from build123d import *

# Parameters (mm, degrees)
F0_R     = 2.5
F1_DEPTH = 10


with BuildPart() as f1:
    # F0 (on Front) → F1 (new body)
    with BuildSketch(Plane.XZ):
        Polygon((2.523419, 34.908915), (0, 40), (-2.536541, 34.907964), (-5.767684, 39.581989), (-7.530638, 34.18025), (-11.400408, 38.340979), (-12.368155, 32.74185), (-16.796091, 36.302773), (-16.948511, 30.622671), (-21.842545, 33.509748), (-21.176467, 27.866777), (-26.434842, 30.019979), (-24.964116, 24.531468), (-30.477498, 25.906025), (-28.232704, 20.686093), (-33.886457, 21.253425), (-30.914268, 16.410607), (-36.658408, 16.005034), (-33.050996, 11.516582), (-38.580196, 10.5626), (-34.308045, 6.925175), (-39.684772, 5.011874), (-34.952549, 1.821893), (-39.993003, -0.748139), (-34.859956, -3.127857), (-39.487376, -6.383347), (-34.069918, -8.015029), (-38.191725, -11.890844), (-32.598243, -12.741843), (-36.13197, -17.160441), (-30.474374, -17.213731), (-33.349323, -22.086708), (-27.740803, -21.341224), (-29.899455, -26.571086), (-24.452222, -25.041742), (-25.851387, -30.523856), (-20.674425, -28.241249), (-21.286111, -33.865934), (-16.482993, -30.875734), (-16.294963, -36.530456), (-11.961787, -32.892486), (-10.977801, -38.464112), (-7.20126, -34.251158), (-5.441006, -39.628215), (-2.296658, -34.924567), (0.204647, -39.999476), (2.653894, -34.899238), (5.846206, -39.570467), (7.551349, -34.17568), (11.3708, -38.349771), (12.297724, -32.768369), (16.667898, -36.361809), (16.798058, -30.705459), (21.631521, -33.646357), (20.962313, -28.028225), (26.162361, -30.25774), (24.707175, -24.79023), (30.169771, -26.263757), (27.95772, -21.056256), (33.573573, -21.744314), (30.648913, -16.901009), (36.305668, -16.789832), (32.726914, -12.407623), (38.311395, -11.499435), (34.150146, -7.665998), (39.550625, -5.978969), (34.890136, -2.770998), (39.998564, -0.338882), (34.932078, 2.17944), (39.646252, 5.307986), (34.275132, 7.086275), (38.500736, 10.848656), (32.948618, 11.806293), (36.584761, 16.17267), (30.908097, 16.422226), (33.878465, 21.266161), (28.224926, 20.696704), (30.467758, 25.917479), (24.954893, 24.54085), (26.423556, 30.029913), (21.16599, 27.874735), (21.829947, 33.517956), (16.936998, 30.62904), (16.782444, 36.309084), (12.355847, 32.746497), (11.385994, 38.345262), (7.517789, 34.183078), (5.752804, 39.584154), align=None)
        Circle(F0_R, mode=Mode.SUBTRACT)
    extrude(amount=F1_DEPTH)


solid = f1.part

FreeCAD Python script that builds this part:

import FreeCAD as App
import Part
import Sketcher
Q = App.Units.Quantity

doc = App.newDocument("Part")
body = doc.addObject("PartDesign::Body", "Body")

# Sketch on XZ plane
sketch1 = doc.addObject("Sketcher::SketchObject", "Sketch")
body.addObject(sketch1)
sketch1.AttachmentSupport = (doc.XZ_Plane, [""])
sketch1.MapMode = "FlatFace"
sketch1.addGeometry(Part.LineSegment(App.Vector(2.523419, 34.908915, 0), App.Vector(0, 40, 0)), False)
sketch1.addGeometry(Part.LineSegment(App.Vector(0, 40, 0), App.Vector(-2.536541, 34.907964, 0)), False)
sketch1.addGeometry(Part.LineSegment(App.Vector(-2.536541, 34.907964, 0), App.Vector(-5.767684, 39.581989, 0)), False)
sketch1.addGeometry(Part.LineSegment(App.Vector(-5.767684, 39.581989, 0), App.Vector(-7.530638, 34.18025, 0)), False)
sketch1.addGeometry(Part.LineSegment(App.Vector(-7.530638, 34.18025, 0), App.Vector(-11.400408, 38.340979, 0)), False)
sketch1.addGeometry(Part.LineSegment(App.Vector(-11.400408, 38.340979, 0), App.Vector(-12.368155, 32.74185, 0)), False)
sketch1.addGeometry(Part.LineSegment(App.Vector(-12.368155, 32.74185, 0), App.Vector(-16.796091, 36.302773, 0)), False)
sketch1.addGeometry(Part.LineSegment(App.Vector(-16.796091, 36.302773, 0), App.Vector(-16.948511, 30.622671, 0)), False)
sketch1.addGeometry(Part.LineSegment(App.Vector(-16.948511, 30.622671, 0), App.Vector(-21.842545, 33.509748, 0)), False)
sketch1.addGeometry(Part.LineSegment(App.Vector(-21.842545, 33.509748, 0), App.Vector(-21.176467, 27.866777, 0)), False)
sketch1.addGeometry(Part.LineSegment(App.Vector(-21.176467, 27.866777, 0), App.Vector(-26.434842, 30.019979, 0)), False)
sketch1.addGeometry(Part.LineSegment(App.Vector(-26.434842, 30.019979, 0), App.Vector(-24.964116, 24.531468, 0)), False)
sketch1.addGeometry(Part.LineSegment(App.Vector(-24.964116, 24.531468, 0), App.Vector(-30.477498, 25.906025, 0)), False)
sketch1.addGeometry(Part.LineSegment(App.Vector(-30.477498, 25.906025, 0), App.Vector(-28.232704, 20.686093, 0)), False)
sketch1.addGeometry(Part.LineSegment(App.Vector(-28.232704, 20.686093, 0), App.Vector(-33.886457, 21.253425, 0)), False)
sketch1.addGeometry(Part.LineSegment(App.Vector(-33.886457, 21.253425, 0), App.Vector(-30.914268, 16.410607, 0)), False)
sketch1.addGeometry(Part.LineSegment(App.Vector(-30.914268, 16.410607, 0), App.Vector(-36.658408, 16.005034, 0)), False)
sketch1.addGeometry(Part.LineSegment(App.Vector(-36.658408, 16.005034, 0), App.Vector(-33.050996, 11.516582, 0)), False)
sketch1.addGeometry(Part.LineSegment(App.Vector(-33.050996, 11.516582, 0), App.Vector(-38.580196, 10.5626, 0)), False)
sketch1.addGeometry(Part.LineSegment(App.Vector(-38.580196, 10.5626, 0), App.Vector(-34.308045, 6.925175, 0)), False)
sketch1.addGeometry(Part.LineSegment(App.Vector(-34.308045, 6.925175, 0), App.Vector(-39.684772, 5.011874, 0)), False)
sketch1.addGeometry(Part.LineSegment(App.Vector(-39.684772, 5.011874, 0), App.Vector(-34.952549, 1.821893, 0)), False)
sketch1.addGeometry(Part.LineSegment(App.Vector(-34.952549, 1.821893, 0), App.Vector(-39.993003, -0.748139, 0)), False)
sketch1.addGeometry(Part.LineSegment(App.Vector(-39.993003, -0.748139, 0), App.Vector(-34.859956, -3.127857, 0)), False)
sketch1.addGeometry(Part.LineSegment(App.Vector(-34.859956, -3.127857, 0), App.Vector(-39.487376, -6.383347, 0)), False)
sketch1.addGeometry(Part.LineSegment(App.Vector(-39.487376, -6.383347, 0), App.Vector(-34.069918, -8.015029, 0)), False)
sketch1.addGeometry(Part.LineSegment(App.Vector(-34.069918, -8.015029, 0), App.Vector(-38.191725, -11.890844, 0)), False)
sketch1.addGeometry(Part.LineSegment(App.Vector(-38.191725, -11.890844, 0), App.Vector(-32.598243, -12.741843, 0)), False)
sketch1.addGeometry(Part.LineSegment(App.Vector(-32.598243, -12.741843, 0), App.Vector(-36.13197, -17.160441, 0)), False)
sketch1.addGeometry(Part.LineSegment(App.Vector(-36.13197, -17.160441, 0), App.Vector(-30.474374, -17.213731, 0)), False)
sketch1.addGeometry(Part.LineSegment(App.Vector(-30.474374, -17.213731, 0), App.Vector(-33.349323, -22.086708, 0)), False)
sketch1.addGeometry(Part.LineSegment(App.Vector(-33.349323, -22.086708, 0), App.Vector(-27.740803, -21.341224, 0)), False)
sketch1.addGeometry(Part.LineSegment(App.Vector(-27.740803, -21.341224, 0), App.Vector(-29.899455, -26.571086, 0)), False)
sketch1.addGeometry(Part.LineSegment(App.Vector(-29.899455, -26.571086, 0), App.Vector(-24.452222, -25.041742, 0)), False)
sketch1.addGeometry(Part.LineSegment(App.Vector(-24.452222, -25.041742, 0), App.Vector(-25.851387, -30.523856, 0)), False)
sketch1.addGeometry(Part.LineSegment(App.Vector(-25.851387, -30.523856, 0), App.Vector(-20.674425, -28.241249, 0)), False)
sketch1.addGeometry(Part.LineSegment(App.Vector(-20.674425, -28.241249, 0), App.Vector(-21.286111, -33.865934, 0)), False)
sketch1.addGeometry(Part.LineSegment(App.Vector(-21.286111, -33.865934, 0), App.Vector(-16.482993, -30.875734, 0)), False)
sketch1.addGeometry(Part.LineSegment(App.Vector(-16.482993, -30.875734, 0), App.Vector(-16.294963, -36.530456, 0)), False)
sketch1.addGeometry(Part.LineSegment(App.Vector(-16.294963, -36.530456, 0), App.Vector(-11.961787, -32.892486, 0)), False)
sketch1.addGeometry(Part.LineSegment(App.Vector(-11.961787, -32.892486, 0), App.Vector(-10.977801, -38.464112, 0)), False)
sketch1.addGeometry(Part.LineSegment(App.Vector(-10.977801, -38.464112, 0), App.Vector(-7.20126, -34.251158, 0)), False)
sketch1.addGeometry(Part.LineSegment(App.Vector(-7.20126, -34.251158, 0), App.Vector(-5.441006, -39.628215, 0)), False)
sketch1.addGeometry(Part.LineSegment(App.Vector(-5.441006, -39.628215, 0), App.Vector(-2.296658, -34.924567, 0)), False)
sketch1.addGeometry(Part.LineSegment(App.Vector(-2.296658, -34.924567, 0), App.Vector(0.204647, -39.999476, 0)), False)
sketch1.addGeometry(Part.LineSegment(App.Vector(0.204647, -39.999476, 0), App.Vector(2.653894, -34.899238, 0)), False)
sketch1.addGeometry(Part.LineSegment(App.Vector(2.653894, -34.899238, 0), App.Vector(5.846206, -39.570467, 0)), False)
sketch1.addGeometry(Part.LineSegment(App.Vector(5.846206, -39.570467, 0), App.Vector(7.551349, -34.17568, 0)), False)
sketch1.addGeometry(Part.LineSegment(App.Vector(7.551349, -34.17568, 0), App.Vector(11.3708, -38.349771, 0)), False)
sketch1.addGeometry(Part.LineSegment(App.Vector(11.3708, -38.349771, 0), App.Vector(12.297724, -32.768369, 0)), False)
sketch1.addGeometry(Part.LineSegment(App.Vector(12.297724, -32.768369, 0), App.Vector(16.667898, -36.361809, 0)), False)
sketch1.addGeometry(Part.LineSegment(App.Vector(16.667898, -36.361809, 0), App.Vector(16.798058, -30.705459, 0)), False)
sketch1.addGeometry(Part.LineSegment(App.Vector(16.798058, -30.705459, 0), App.Vector(21.631521, -33.646357, 0)), False)
sketch1.addGeometry(Part.LineSegment(App.Vector(21.631521, -33.646357, 0), App.Vector(20.962313, -28.028225, 0)), False)
sketch1.addGeometry(Part.LineSegment(App.Vector(20.962313, -28.028225, 0), App.Vector(26.162361, -30.25774, 0)), False)
sketch1.addGeometry(Part.LineSegment(App.Vector(26.162361, -30.25774, 0), App.Vector(24.707175, -24.79023, 0)), False)
sketch1.addGeometry(Part.LineSegment(App.Vector(24.707175, -24.79023, 0), App.Vector(30.169771, -26.263757, 0)), False)
sketch1.addGeometry(Part.LineSegment(App.Vector(30.169771, -26.263757, 0), App.Vector(27.95772, -21.056256, 0)), False)
sketch1.addGeometry(Part.LineSegment(App.Vector(27.95772, -21.056256, 0), App.Vector(33.573573, -21.744314, 0)), False)
sketch1.addGeometry(Part.LineSegment(App.Vector(33.573573, -21.744314, 0), App.Vector(30.648913, -16.901009, 0)), False)
sketch1.addGeometry(Part.LineSegment(App.Vector(30.648913, -16.901009, 0), App.Vector(36.305668, -16.789832, 0)), False)
sketch1.addGeometry(Part.LineSegment(App.Vector(36.305668, -16.789832, 0), App.Vector(32.726914, -12.407623, 0)), False)
sketch1.addGeometry(Part.LineSegment(App.Vector(32.726914, -12.407623, 0), App.Vector(38.311395, -11.499435, 0)), False)
sketch1.addGeometry(Part.LineSegment(App.Vector(38.311395, -11.499435, 0), App.Vector(34.150146, -7.665998, 0)), False)
sketch1.addGeometry(Part.LineSegment(App.Vector(34.150146, -7.665998, 0), App.Vector(39.550625, -5.978969, 0)), False)
sketch1.addGeometry(Part.LineSegment(App.Vector(39.550625, -5.978969, 0), App.Vector(34.890136, -2.770998, 0)), False)
sketch1.addGeometry(Part.LineSegment(App.Vector(34.890136, -2.770998, 0), App.Vector(39.998564, -0.338882, 0)), False)
sketch1.addGeometry(Part.LineSegment(App.Vector(39.998564, -0.338882, 0), App.Vector(34.932078, 2.17944, 0)), False)
sketch1.addGeometry(Part.LineSegment(App.Vector(34.932078, 2.17944, 0), App.Vector(39.646252, 5.307986, 0)), False)
sketch1.addGeometry(Part.LineSegment(App.Vector(39.646252, 5.307986, 0), App.Vector(34.275132, 7.086275, 0)), False)
sketch1.addGeometry(Part.LineSegment(App.Vector(34.275132, 7.086275, 0), App.Vector(38.500736, 10.848656, 0)), False)
sketch1.addGeometry(Part.LineSegment(App.Vector(38.500736, 10.848656, 0), App.Vector(32.948618, 11.806293, 0)), False)
sketch1.addGeometry(Part.LineSegment(App.Vector(32.948618, 11.806293, 0), App.Vector(36.584761, 16.17267, 0)), False)
sketch1.addGeometry(Part.LineSegment(App.Vector(36.584761, 16.17267, 0), App.Vector(30.908097, 16.422226, 0)), False)
sketch1.addGeometry(Part.LineSegment(App.Vector(30.908097, 16.422226, 0), App.Vector(33.878465, 21.266161, 0)), False)
sketch1.addGeometry(Part.LineSegment(App.Vector(33.878465, 21.266161, 0), App.Vector(28.224926, 20.696704, 0)), False)
sketch1.addGeometry(Part.LineSegment(App.Vector(28.224926, 20.696704, 0), App.Vector(30.467758, 25.917479, 0)), False)
sketch1.addGeometry(Part.LineSegment(App.Vector(30.467758, 25.917479, 0), App.Vector(24.954893, 24.54085, 0)), False)
sketch1.addGeometry(Part.LineSegment(App.Vector(24.954893, 24.54085, 0), App.Vector(26.423556, 30.029913, 0)), False)
sketch1.addGeometry(Part.LineSegment(App.Vector(26.423556, 30.029913, 0), App.Vector(21.16599, 27.874735, 0)), False)
sketch1.addGeometry(Part.LineSegment(App.Vector(21.16599, 27.874735, 0), App.Vector(21.829947, 33.517956, 0)), False)
sketch1.addGeometry(Part.LineSegment(App.Vector(21.829947, 33.517956, 0), App.Vector(16.936998, 30.62904, 0)), False)
sketch1.addGeometry(Part.LineSegment(App.Vector(16.936998, 30.62904, 0), App.Vector(16.782444, 36.309084, 0)), False)
sketch1.addGeometry(Part.LineSegment(App.Vector(16.782444, 36.309084, 0), App.Vector(12.355847, 32.746497, 0)), False)
sketch1.addGeometry(Part.LineSegment(App.Vector(12.355847, 32.746497, 0), App.Vector(11.385994, 38.345262, 0)), False)
sketch1.addGeometry(Part.LineSegment(App.Vector(11.385994, 38.345262, 0), App.Vector(7.517789, 34.183078, 0)), False)
sketch1.addGeometry(Part.LineSegment(App.Vector(7.517789, 34.183078, 0), App.Vector(5.752804, 39.584154, 0)), False)
sketch1.addGeometry(Part.LineSegment(App.Vector(5.752804, 39.584154, 0), App.Vector(2.523419, 34.908915, 0)), False)
sketch1.addGeometry(Part.Circle(App.Vector(0, 0, 0), App.Vector(0, 0, 1), 2.5), False)
sketch1.addConstraint(Sketcher.Constraint("Coincident", 0, 2, 1, 1))
sketch1.addConstraint(Sketcher.Constraint("Coincident", 1, 2, 2, 1))
sketch1.addConstraint(Sketcher.Constraint("Coincident", 2, 2, 3, 1))
sketch1.addConstraint(Sketcher.Constraint("Coincident", 3, 2, 4, 1))
sketch1.addConstraint(Sketcher.Constraint("Coincident", 4, 2, 5, 1))
sketch1.addConstraint(Sketcher.Constraint("Coincident", 5, 2, 6, 1))
sketch1.addConstraint(Sketcher.Constraint("Coincident", 6, 2, 7, 1))
sketch1.addConstraint(Sketcher.Constraint("Coincident", 7, 2, 8, 1))
sketch1.addConstraint(Sketcher.Constraint("Coincident", 8, 2, 9, 1))
sketch1.addConstraint(Sketcher.Constraint("Coincident", 9, 2, 10, 1))
sketch1.addConstraint(Sketcher.Constraint("Coincident", 10, 2, 11, 1))
sketch1.addConstraint(Sketcher.Constraint("Coincident", 11, 2, 12, 1))
sketch1.addConstraint(Sketcher.Constraint("Coincident", 12, 2, 13, 1))
sketch1.addConstraint(Sketcher.Constraint("Coincident", 13, 2, 14, 1))
sketch1.addConstraint(Sketcher.Constraint("Coincident", 14, 2, 15, 1))
sketch1.addConstraint(Sketcher.Constraint("Coincident", 15, 2, 16, 1))
sketch1.addConstraint(Sketcher.Constraint("Coincident", 16, 2, 17, 1))
sketch1.addConstraint(Sketcher.Constraint("Coincident", 17, 2, 18, 1))
sketch1.addConstraint(Sketcher.Constraint("Coincident", 18, 2, 19, 1))
sketch1.addConstraint(Sketcher.Constraint("Coincident", 19, 2, 20, 1))
sketch1.addConstraint(Sketcher.Constraint("Coincident", 20, 2, 21, 1))
sketch1.addConstraint(Sketcher.Constraint("Coincident", 21, 2, 22, 1))
sketch1.addConstraint(Sketcher.Constraint("Coincident", 22, 2, 23, 1))
sketch1.addConstraint(Sketcher.Constraint("Coincident", 23, 2, 24, 1))
sketch1.addConstraint(Sketcher.Constraint("Coincident", 24, 2, 25, 1))
sketch1.addConstraint(Sketcher.Constraint("Coincident", 25, 2, 26, 1))
sketch1.addConstraint(Sketcher.Constraint("Coincident", 26, 2, 27, 1))
sketch1.addConstraint(Sketcher.Constraint("Coincident", 27, 2, 28, 1))
sketch1.addConstraint(Sketcher.Constraint("Coincident", 28, 2, 29, 1))
sketch1.addConstraint(Sketcher.Constraint("Coincident", 29, 2, 30, 1))
sketch1.addConstraint(Sketcher.Constraint("Coincident", 30, 2, 31, 1))
sketch1.addConstraint(Sketcher.Constraint("Coincident", 31, 2, 32, 1))
sketch1.addConstraint(Sketcher.Constraint("Coincident", 32, 2, 33, 1))
sketch1.addConstraint(Sketcher.Constraint("Coincident", 33, 2, 34, 1))
sketch1.addConstraint(Sketcher.Constraint("Coincident", 34, 2, 35, 1))
sketch1.addConstraint(Sketcher.Constraint("Coincident", 35, 2, 36, 1))
sketch1.addConstraint(Sketcher.Constraint("Coincident", 36, 2, 37, 1))
sketch1.addConstraint(Sketcher.Constraint("Coincident", 37, 2, 38, 1))
sketch1.addConstraint(Sketcher.Constraint("Coincident", 38, 2, 39, 1))
sketch1.addConstraint(Sketcher.Constraint("Coincident", 39, 2, 40, 1))
sketch1.addConstraint(Sketcher.Constraint("Coincident", 40, 2, 41, 1))
sketch1.addConstraint(Sketcher.Constraint("Coincident", 41, 2, 42, 1))
sketch1.addConstraint(Sketcher.Constraint("Coincident", 42, 2, 43, 1))
sketch1.addConstraint(Sketcher.Constraint("Coincident", 43, 2, 44, 1))
sketch1.addConstraint(Sketcher.Constraint("Coincident", 44, 2, 45, 1))
sketch1.addConstraint(Sketcher.Constraint("Coincident", 45, 2, 46, 1))
sketch1.addConstraint(Sketcher.Constraint("Coincident", 46, 2, 47, 1))
sketch1.addConstraint(Sketcher.Constraint("Coincident", 47, 2, 48, 1))
sketch1.addConstraint(Sketcher.Constraint("Coincident", 48, 2, 49, 1))
sketch1.addConstraint(Sketcher.Constraint("Coincident", 49, 2, 50, 1))
sketch1.addConstraint(Sketcher.Constraint("Coincident", 50, 2, 51, 1))
sketch1.addConstraint(Sketcher.Constraint("Coincident", 51, 2, 52, 1))
sketch1.addConstraint(Sketcher.Constraint("Coincident", 52, 2, 53, 1))
sketch1.addConstraint(Sketcher.Constraint("Coincident", 53, 2, 54, 1))
sketch1.addConstraint(Sketcher.Constraint("Coincident", 54, 2, 55, 1))
sketch1.addConstraint(Sketcher.Constraint("Coincident", 55, 2, 56, 1))
sketch1.addConstraint(Sketcher.Constraint("Coincident", 56, 2, 57, 1))
sketch1.addConstraint(Sketcher.Constraint("Coincident", 57, 2, 58, 1))
sketch1.addConstraint(Sketcher.Constraint("Coincident", 58, 2, 59, 1))
sketch1.addConstraint(Sketcher.Constraint("Coincident", 59, 2, 60, 1))
sketch1.addConstraint(Sketcher.Constraint("Coincident", 60, 2, 61, 1))
sketch1.addConstraint(Sketcher.Constraint("Coincident", 61, 2, 62, 1))
sketch1.addConstraint(Sketcher.Constraint("Coincident", 62, 2, 63, 1))
sketch1.addConstraint(Sketcher.Constraint("Coincident", 63, 2, 64, 1))
sketch1.addConstraint(Sketcher.Constraint("Coincident", 64, 2, 65, 1))
sketch1.addConstraint(Sketcher.Constraint("Coincident", 65, 2, 66, 1))
sketch1.addConstraint(Sketcher.Constraint("Coincident", 66, 2, 67, 1))
sketch1.addConstraint(Sketcher.Constraint("Coincident", 67, 2, 68, 1))
sketch1.addConstraint(Sketcher.Constraint("Coincident", 68, 2, 69, 1))
sketch1.addConstraint(Sketcher.Constraint("Coincident", 69, 2, 70, 1))
sketch1.addConstraint(Sketcher.Constraint("Coincident", 70, 2, 71, 1))
sketch1.addConstraint(Sketcher.Constraint("Coincident", 71, 2, 72, 1))
sketch1.addConstraint(Sketcher.Constraint("Coincident", 72, 2, 73, 1))
sketch1.addConstraint(Sketcher.Constraint("Coincident", 73, 2, 74, 1))
sketch1.addConstraint(Sketcher.Constraint("Coincident", 74, 2, 75, 1))
sketch1.addConstraint(Sketcher.Constraint("Coincident", 75, 2, 76, 1))
sketch1.addConstraint(Sketcher.Constraint("Coincident", 76, 2, 77, 1))
sketch1.addConstraint(Sketcher.Constraint("Coincident", 77, 2, 78, 1))
sketch1.addConstraint(Sketcher.Constraint("Coincident", 78, 2, 79, 1))
sketch1.addConstraint(Sketcher.Constraint("Coincident", 79, 2, 80, 1))
sketch1.addConstraint(Sketcher.Constraint("Coincident", 80, 2, 81, 1))
sketch1.addConstraint(Sketcher.Constraint("Coincident", 81, 2, 82, 1))
sketch1.addConstraint(Sketcher.Constraint("Coincident", 82, 2, 83, 1))
sketch1.addConstraint(Sketcher.Constraint("Coincident", 83, 2, 84, 1))
sketch1.addConstraint(Sketcher.Constraint("Coincident", 84, 2, 85, 1))
sketch1.addConstraint(Sketcher.Constraint("Coincident", 85, 2, 86, 1))
sketch1.addConstraint(Sketcher.Constraint("Coincident", 86, 2, 87, 1))
sketch1.addConstraint(Sketcher.Constraint("Coincident", 87, 2, 0, 1))
sketch1.addConstraint(Sketcher.Constraint("Coincident", 88, 3, -1, 1))
sketch1.addConstraint(Sketcher.Constraint("PointOnObject", 0, 2, -2))
sketch1.addConstraint(Sketcher.Constraint("Diameter", 88, Q("5 mm")))
sketch1.addConstraint(Sketcher.Constraint("DistanceY", -1, 1, 0, 2, Q("40 mm")))
sketch1.addConstraint(Sketcher.Constraint("DistanceY", 65, 2, -1, 1, Q("2.770998 mm")))
sketch1.addConstraint(Sketcher.Constraint("Distance", 71, Q("5.6341 mm")))
sketch1.addConstraint(Sketcher.Constraint("DistanceX", 12, 2, -1, 1, Q("30.477498 mm")))
sketch1.addConstraint(Sketcher.Constraint("DistanceY", -1, 1, 18, 2, Q("10.5626 mm")))
sketch1.addConstraint(Sketcher.Constraint("DistanceX", 40, 2, -1, 1, Q("10.977801 mm")))
sketch1.addConstraint(Sketcher.Constraint("DistanceX", -1, 1, 48, 2, Q("11.3708 mm")))
sketch1.addConstraint(Sketcher.Constraint("DistanceX", -1, 1, 50, 2, Q("16.667898 mm")))
sketch1.addConstraint(Sketcher.Constraint("Distance", 16, Q("5.75844 mm")))
sketch1.addConstraint(Sketcher.Constraint("Distance", 17, Q("5.758439 mm")))
sketch1.addConstraint(Sketcher.Constraint("Distance", 40, Q("5.657848 mm")))
sketch1.addConstraint(Sketcher.Constraint("Distance", 52, Q("5.657848 mm")))
sketch1.addConstraint(Sketcher.Constraint("Distance", 53, Q("5.657848 mm")))
sketch1.addConstraint(Sketcher.Constraint("DistanceX", 1, 2, -1, 1, Q("2.536541 mm")))
sketch1.addConstraint(Sketcher.Constraint("DistanceY", -1, 1, 2, 2, Q("39.581989 mm")))
sketch1.addConstraint(Sketcher.Constraint("DistanceY", -1, 1, 3, 2, Q("34.18025 mm")))
sketch1.addConstraint(Sketcher.Constraint("DistanceY", -1, 1, 4, 2, Q("38.340979 mm")))
sketch1.addConstraint(Sketcher.Constraint("DistanceY", -1, 1, 5, 2, Q("32.74185 mm")))
sketch1.addConstraint(Sketcher.Constraint("DistanceX", 6, 2, -1, 1, Q("16.796091 mm")))
sketch1.addConstraint(Sketcher.Constraint("DistanceX", 7, 2, -1, 1, Q("16.948511 mm")))
sketch1.addConstraint(Sketcher.Constraint("DistanceY", -1, 1, 7, 2, Q("30.622671 mm")))
sketch1.addConstraint(Sketcher.Constraint("DistanceY", -1, 1, 8, 2, Q("33.509748 mm")))
sketch1.addConstraint(Sketcher.Constraint("DistanceX", 10, 2, -1, 1, Q("26.434842 mm")))
sketch1.addConstraint(Sketcher.Constraint("DistanceY", -1, 1, 10, 2, Q("30.019979 mm")))
sketch1.addConstraint(Sketcher.Constraint("DistanceY", -1, 1, 11, 2, Q("24.531468 mm")))
sketch1.addConstraint(Sketcher.Constraint("DistanceX", 15, 2, -1, 1, Q("30.914268 mm")))
sketch1.addConstraint(Sketcher.Constraint("DistanceX", 21, 2, -1, 1, Q("34.952549 mm")))
sketch1.addConstraint(Sketcher.Constraint("DistanceY", 22, 2, -1, 1, Q("0.748139 mm")))
sketch1.addConstraint(Sketcher.Constraint("DistanceY", 25, 2, -1, 1, Q("8.015029 mm")))
sketch1.addConstraint(Sketcher.Constraint("DistanceX", 28, 2, -1, 1, Q("36.13197 mm")))
sketch1.addConstraint(Sketcher.Constraint("DistanceY", 28, 2, -1, 1, Q("17.160441 mm")))
sketch1.addConstraint(Sketcher.Constraint("DistanceY", 29, 2, -1, 1, Q("17.213731 mm")))
sketch1.addConstraint(Sketcher.Constraint("DistanceY", 30, 2, -1, 1, Q("22.086708 mm")))
sketch1.addConstraint(Sketcher.Constraint("DistanceX", 33, 2, -1, 1, Q("24.452222 mm")))
sketch1.addConstraint(Sketcher.Constraint("DistanceY", 33, 2, -1, 1, Q("25.041742 mm")))
sketch1.addConstraint(Sketcher.Constraint("DistanceY", 35, 2, -1, 1, Q("28.241249 mm")))
sketch1.addConstraint(Sketcher.Constraint("DistanceX", 36, 2, -1, 1, Q("21.286111 mm")))
sketch1.addConstraint(Sketcher.Constraint("DistanceX", 41, 2, -1, 1, Q("7.20126 mm")))
sketch1.addConstraint(Sketcher.Constraint("DistanceX", -1, 1, 47, 2, Q("7.551349 mm")))
sketch1.addConstraint(Sketcher.Constraint("DistanceY", 47, 2, -1, 1, Q("34.17568 mm")))
sketch1.addConstraint(Sketcher.Constraint("DistanceY", 48, 2, -1, 1, Q("38.349771 mm")))
sketch1.addConstraint(Sketcher.Constraint("DistanceY", 49, 2, -1, 1, Q("32.768369 mm")))
sketch1.addConstraint(Sketcher.Constraint("DistanceY", 50, 2, -1, 1, Q("36.361809 mm")))
sketch1.addConstraint(Sketcher.Constraint("DistanceX", -1, 1, 51, 2, Q("16.798058 mm")))
sketch1.addConstraint(Sketcher.Constraint("DistanceY", 51, 2, -1, 1, Q("30.705459 mm")))
sketch1.addConstraint(Sketcher.Constraint("DistanceX", -1, 1, 52, 2, Q("21.631521 mm")))
sketch1.addConstraint(Sketcher.Constraint("DistanceX", -1, 1, 54, 2, Q("26.162361 mm")))
sketch1.addConstraint(Sketcher.Constraint("DistanceY", 54, 2, -1, 1, Q("30.25774 mm")))
sketch1.addConstraint(Sketcher.Constraint("DistanceY", 55, 2, -1, 1, Q("24.79023 mm")))
sketch1.addConstraint(Sketcher.Constraint("DistanceX", -1, 1, 56, 2, Q("30.169771 mm")))
sketch1.addConstraint(Sketcher.Constraint("DistanceX", -1, 1, 57, 2, Q("27.95772 mm")))
sketch1.addConstraint(Sketcher.Constraint("DistanceY", 59, 2, -1, 1, Q("16.901009 mm")))
sketch1.addConstraint(Sketcher.Constraint("DistanceY", 64, 2, -1, 1, Q("5.978969 mm")))
sketch1.addConstraint(Sketcher.Constraint("DistanceY", -1, 1, 67, 2, Q("2.17944 mm")))
sketch1.addConstraint(Sketcher.Constraint("DistanceX", -1, 1, 68, 2, Q("39.646252 mm")))
sketch1.addConstraint(Sketcher.Constraint("DistanceX", -1, 1, 71, 2, Q("32.948618 mm")))
sketch1.addConstraint(Sketcher.Constraint("DistanceX", -1, 1, 72, 2, Q("36.584761 mm")))
sketch1.addConstraint(Sketcher.Constraint("DistanceY", -1, 1, 72, 2, Q("16.17267 mm")))
sketch1.addConstraint(Sketcher.Constraint("DistanceY", -1, 1, 74, 2, Q("21.266161 mm")))
sketch1.addConstraint(Sketcher.Constraint("DistanceX", -1, 1, 76, 2, Q("30.467758 mm")))
sketch1.addConstraint(Sketcher.Constraint("DistanceY", -1, 1, 76, 2, Q("25.917479 mm")))
sketch1.addConstraint(Sketcher.Constraint("DistanceY", -1, 1, 77, 2, Q("24.54085 mm")))
sketch1.addConstraint(Sketcher.Constraint("DistanceX", -1, 1, 79, 2, Q("21.16599 mm")))
sketch1.addConstraint(Sketcher.Constraint("DistanceY", -1, 1, 81, 2, Q("30.62904 mm")))
sketch1.addConstraint(Sketcher.Constraint("DistanceY", -1, 1, 84, 2, Q("38.345262 mm")))
sketch1.addConstraint(Sketcher.Constraint("DistanceX", -1, 1, 85, 2, Q("7.517789 mm")))
sketch1.addConstraint(Sketcher.Constraint("DistanceY", -1, 1, 85, 2, Q("34.183078 mm")))
sketch1.addConstraint(Sketcher.Constraint("DistanceX", -1, 1, 87, 2, Q("2.523419 mm")))
sketch1.addConstraint(Sketcher.Constraint("Distance", 0, Q("5.682147 mm")))
sketch1.addConstraint(Sketcher.Constraint("Distance", 1, Q("5.688837 mm")))
sketch1.addConstraint(Sketcher.Constraint("Distance", 2, Q("5.682147 mm")))
sketch1.addConstraint(Sketcher.Constraint("Distance", 3, Q("5.682147 mm")))
sketch1.addConstraint(Sketcher.Constraint("Distance", 4, Q("5.682146 mm")))
sketch1.addConstraint(Sketcher.Constraint("Distance", 5, Q("5.682146 mm")))
sketch1.addConstraint(Sketcher.Constraint("Distance", 6, Q("5.682147 mm")))
sketch1.addConstraint(Sketcher.Constraint("Distance", 8, Q("5.682146 mm")))
sketch1.addConstraint(Sketcher.Constraint("Distance", 9, Q("5.682146 mm")))
sketch1.addConstraint(Sketcher.Constraint("Distance", 10, Q("5.682146 mm")))
sketch1.addConstraint(Sketcher.Constraint("Distance", 11, Q("5.682146 mm")))
sketch1.addConstraint(Sketcher.Constraint("Distance", 12, Q("5.682146 mm")))
sketch1.addConstraint(Sketcher.Constraint("Distance", 13, Q("5.682147 mm")))
sketch1.addConstraint(Sketcher.Constraint("Distance", 14, Q("5.682146 mm")))
sketch1.addConstraint(Sketcher.Constraint("Distance", 15, Q("5.682147 mm")))
sketch1.addConstraint(Sketcher.Constraint("Distance", 18, Q("5.610894 mm")))
sketch1.addConstraint(Sketcher.Constraint("Distance", 19, Q("5.610894 mm")))
sketch1.addConstraint(Sketcher.Constraint("Distance", 20, Q("5.707006 mm")))
sketch1.addConstraint(Sketcher.Constraint("Distance", 21, Q("5.707006 mm")))
sketch1.addConstraint(Sketcher.Constraint("Distance", 22, Q("5.657848 mm")))
sketch1.addConstraint(Sketcher.Constraint("Distance", 23, Q("5.657847 mm")))
sketch1.addConstraint(Sketcher.Constraint("Distance", 24, Q("5.657847 mm")))
sketch1.addConstraint(Sketcher.Constraint("Distance", 25, Q("5.657847 mm")))
sketch1.addConstraint(Sketcher.Constraint("Distance", 26, Q("5.657847 mm")))
sketch1.addConstraint(Sketcher.Constraint("Distance", 27, Q("5.657848 mm")))
sketch1.addConstraint(Sketcher.Constraint("Distance", 28, Q("5.657847 mm")))
sketch1.addConstraint(Sketcher.Constraint("Distance", 29, Q("5.657847 mm")))
sketch1.addConstraint(Sketcher.Constraint("Distance", 30, Q("5.657847 mm")))
sketch1.addConstraint(Sketcher.Constraint("Distance", 31, Q("5.657848 mm")))
sketch1.addConstraint(Sketcher.Constraint("Distance", 32, Q("5.657847 mm")))
sketch1.addConstraint(Sketcher.Constraint("Distance", 33, Q("5.657848 mm")))
sketch1.addConstraint(Sketcher.Constraint("Distance", 34, Q("5.657847 mm")))
sketch1.addConstraint(Sketcher.Constraint("Distance", 35, Q("5.657847 mm")))
sketch1.addConstraint(Sketcher.Constraint("Distance", 36, Q("5.657848 mm")))
sketch1.addConstraint(Sketcher.Constraint("Distance", 37, Q("5.657848 mm")))
sketch1.addConstraint(Sketcher.Constraint("Distance", 38, Q("5.657847 mm")))
sketch1.addConstraint(Sketcher.Constraint("Distance", 39, Q("5.657848 mm")))
sketch1.addConstraint(Sketcher.Constraint("Distance", 41, Q("5.657848 mm")))
sketch1.addConstraint(Sketcher.Constraint("Distance", 42, Q("5.657847 mm")))
sketch1.addConstraint(Sketcher.Constraint("Distance", 43, Q("5.657847 mm")))
sketch1.addConstraint(Sketcher.Constraint("Distance", 44, Q("5.657847 mm")))
sketch1.addConstraint(Sketcher.Constraint("Distance", 45, Q("5.657848 mm")))
sketch1.addConstraint(Sketcher.Constraint("Distance", 46, Q("5.657847 mm")))
sketch1.addConstraint(Sketcher.Constraint("Distance", 47, Q("5.657848 mm")))
sketch1.addConstraint(Sketcher.Constraint("Distance", 49, Q("5.657847 mm")))
sketch1.addConstraint(Sketcher.Constraint("Distance", 54, Q("5.657847 mm")))
sketch1.addConstraint(Sketcher.Constraint("Distance", 55, Q("5.657847 mm")))
sketch1.addConstraint(Sketcher.Constraint("Distance", 56, Q("5.657847 mm")))
sketch1.addConstraint(Sketcher.Constraint("Distance", 57, Q("5.657847 mm")))
sketch1.addConstraint(Sketcher.Constraint("Distance", 58, Q("5.657847 mm")))
sketch1.addConstraint(Sketcher.Constraint("Distance", 59, Q("5.657848 mm")))
sketch1.addConstraint(Sketcher.Constraint("Distance", 60, Q("5.657847 mm")))
sketch1.addConstraint(Sketcher.Constraint("Distance", 61, Q("5.657847 mm")))
sketch1.addConstraint(Sketcher.Constraint("Distance", 62, Q("5.657847 mm")))
sketch1.addConstraint(Sketcher.Constraint("Distance", 63, Q("5.657847 mm")))
sketch1.addConstraint(Sketcher.Constraint("Distance", 64, Q("5.657848 mm")))
sketch1.addConstraint(Sketcher.Constraint("Distance", 65, Q("5.657847 mm")))
sketch1.addConstraint(Sketcher.Constraint("Distance", 66, Q("5.657846 mm")))
sketch1.addConstraint(Sketcher.Constraint("Distance", 67, Q("5.657846 mm")))
sketch1.addConstraint(Sketcher.Constraint("Distance", 68, Q("5.657847 mm")))
sketch1.addConstraint(Sketcher.Constraint("Distance", 69, Q("5.657848 mm")))
sketch1.addConstraint(Sketcher.Constraint("Distance", 70, Q("5.657848 mm")))
sketch1.addConstraint(Sketcher.Constraint("Distance", 72, Q("5.682146 mm")))
sketch1.addConstraint(Sketcher.Constraint("Distance", 73, Q("5.682147 mm")))
sketch1.addConstraint(Sketcher.Constraint("Distance", 74, Q("5.682147 mm")))
sketch1.addConstraint(Sketcher.Constraint("Distance", 75, Q("5.682146 mm")))
sketch1.addConstraint(Sketcher.Constraint("Distance", 76, Q("5.682146 mm")))
sketch1.addConstraint(Sketcher.Constraint("Distance", 77, Q("5.682146 mm")))
sketch1.addConstraint(Sketcher.Constraint("Distance", 78, Q("5.682146 mm")))
sketch1.addConstraint(Sketcher.Constraint("Distance", 79, Q("5.682147 mm")))
sketch1.addConstraint(Sketcher.Constraint("Distance", 80, Q("5.682146 mm")))
sketch1.addConstraint(Sketcher.Constraint("Distance", 81, Q("5.682146 mm")))
sketch1.addConstraint(Sketcher.Constraint("Distance", 82, Q("5.682146 mm")))
sketch1.addConstraint(Sketcher.Constraint("Distance", 83, Q("5.682146 mm")))
sketch1.addConstraint(Sketcher.Constraint("Distance", 84, Q("5.682146 mm")))
sketch1.addConstraint(Sketcher.Constraint("Distance", 85, Q("5.682146 mm")))
sketch1.addConstraint(Sketcher.Constraint("Distance", 86, Q("5.682147 mm")))
sketch1.addConstraint(Sketcher.Constraint("Distance", 87, Q("5.682146 mm")))
sketch1.addConstraint(Sketcher.Constraint("DistanceX", 13, 2, -1, 1, Q("28.232704 mm")))
sketch1.addConstraint(Sketcher.Constraint("DistanceX", 14, 2, -1, 1, Q("33.886457 mm")))
sketch1.addConstraint(Sketcher.Constraint("DistanceX", 16, 2, -1, 1, Q("36.658408 mm")))
sketch1.addConstraint(Sketcher.Constraint("DistanceX", 17, 2, -1, 1, Q("33.050996 mm")))
sketch1.addConstraint(Sketcher.Constraint("DistanceX", 19, 2, -1, 1, Q("34.308045 mm")))
sketch1.addConstraint(Sketcher.Constraint("DistanceX", 20, 2, -1, 1, Q("39.684772 mm")))
sketch1.addConstraint(Sketcher.Constraint("DistanceX", 23, 2, -1, 1, Q("34.859956 mm")))
sketch1.addConstraint(Sketcher.Constraint("DistanceX", 24, 2, -1, 1, Q("39.487376 mm")))
sketch1.addConstraint(Sketcher.Constraint("DistanceX", 26, 2, -1, 1, Q("38.191725 mm")))
sketch1.addConstraint(Sketcher.Constraint("DistanceX", 31, 2, -1, 1, Q("27.740803 mm")))
sketch1.addConstraint(Sketcher.Constraint("DistanceX", 34, 2, -1, 1, Q("25.851387 mm")))
sketch1.addConstraint(Sketcher.Constraint("DistanceX", 37, 2, -1, 1, Q("16.482993 mm")))
sketch1.addConstraint(Sketcher.Constraint("DistanceX", 38, 2, -1, 1, Q("16.294963 mm")))
sketch1.addConstraint(Sketcher.Constraint("DistanceX", 39, 2, -1, 1, Q("11.961787 mm")))
sketch1.addConstraint(Sketcher.Constraint("DistanceX", 42, 2, -1, 1, Q("5.441006 mm")))
sketch1.addConstraint(Sketcher.Constraint("DistanceX", 43, 2, -1, 1, Q("2.296658 mm")))
sketch1.addConstraint(Sketcher.Constraint("DistanceX", -1, 1, 44, 2, Q("0.204647 mm")))
sketch1.addConstraint(Sketcher.Constraint("DistanceX", -1, 1, 45, 2, Q("2.653894 mm")))
sketch1.addConstraint(Sketcher.Constraint("DistanceX", -1, 1, 58, 2, Q("33.573573 mm")))
sketch1.addConstraint(Sketcher.Constraint("DistanceX", -1, 1, 60, 2, Q("36.305668 mm")))
sketch1.addConstraint(Sketcher.Constraint("DistanceX", -1, 1, 61, 2, Q("32.726914 mm")))
sketch1.addConstraint(Sketcher.Constraint("DistanceX", -1, 1, 62, 2, Q("38.311395 mm")))
sketch1.addConstraint(Sketcher.Constraint("DistanceX", -1, 1, 63, 2, Q("34.150146 mm")))
sketch1.addConstraint(Sketcher.Constraint("DistanceX", -1, 1, 66, 2, Q("39.998564 mm")))
sketch1.addConstraint(Sketcher.Constraint("DistanceX", -1, 1, 69, 2, Q("34.275132 mm")))
sketch1.addConstraint(Sketcher.Constraint("DistanceX", -1, 1, 73, 2, Q("30.908097 mm")))
sketch1.addConstraint(Sketcher.Constraint("DistanceX", -1, 1, 78, 2, Q("26.423556 mm")))
sketch1.addConstraint(Sketcher.Constraint("DistanceX", -1, 1, 80, 2, Q("21.829947 mm")))
sketch1.addConstraint(Sketcher.Constraint("DistanceX", -1, 1, 82, 2, Q("16.782444 mm")))
pad1 = doc.addObject("PartDesign::Pad", "Pad")
body.addObject(pad1)
pad1.Profile = sketch1
pad1.Length = 10

doc.recompute()
